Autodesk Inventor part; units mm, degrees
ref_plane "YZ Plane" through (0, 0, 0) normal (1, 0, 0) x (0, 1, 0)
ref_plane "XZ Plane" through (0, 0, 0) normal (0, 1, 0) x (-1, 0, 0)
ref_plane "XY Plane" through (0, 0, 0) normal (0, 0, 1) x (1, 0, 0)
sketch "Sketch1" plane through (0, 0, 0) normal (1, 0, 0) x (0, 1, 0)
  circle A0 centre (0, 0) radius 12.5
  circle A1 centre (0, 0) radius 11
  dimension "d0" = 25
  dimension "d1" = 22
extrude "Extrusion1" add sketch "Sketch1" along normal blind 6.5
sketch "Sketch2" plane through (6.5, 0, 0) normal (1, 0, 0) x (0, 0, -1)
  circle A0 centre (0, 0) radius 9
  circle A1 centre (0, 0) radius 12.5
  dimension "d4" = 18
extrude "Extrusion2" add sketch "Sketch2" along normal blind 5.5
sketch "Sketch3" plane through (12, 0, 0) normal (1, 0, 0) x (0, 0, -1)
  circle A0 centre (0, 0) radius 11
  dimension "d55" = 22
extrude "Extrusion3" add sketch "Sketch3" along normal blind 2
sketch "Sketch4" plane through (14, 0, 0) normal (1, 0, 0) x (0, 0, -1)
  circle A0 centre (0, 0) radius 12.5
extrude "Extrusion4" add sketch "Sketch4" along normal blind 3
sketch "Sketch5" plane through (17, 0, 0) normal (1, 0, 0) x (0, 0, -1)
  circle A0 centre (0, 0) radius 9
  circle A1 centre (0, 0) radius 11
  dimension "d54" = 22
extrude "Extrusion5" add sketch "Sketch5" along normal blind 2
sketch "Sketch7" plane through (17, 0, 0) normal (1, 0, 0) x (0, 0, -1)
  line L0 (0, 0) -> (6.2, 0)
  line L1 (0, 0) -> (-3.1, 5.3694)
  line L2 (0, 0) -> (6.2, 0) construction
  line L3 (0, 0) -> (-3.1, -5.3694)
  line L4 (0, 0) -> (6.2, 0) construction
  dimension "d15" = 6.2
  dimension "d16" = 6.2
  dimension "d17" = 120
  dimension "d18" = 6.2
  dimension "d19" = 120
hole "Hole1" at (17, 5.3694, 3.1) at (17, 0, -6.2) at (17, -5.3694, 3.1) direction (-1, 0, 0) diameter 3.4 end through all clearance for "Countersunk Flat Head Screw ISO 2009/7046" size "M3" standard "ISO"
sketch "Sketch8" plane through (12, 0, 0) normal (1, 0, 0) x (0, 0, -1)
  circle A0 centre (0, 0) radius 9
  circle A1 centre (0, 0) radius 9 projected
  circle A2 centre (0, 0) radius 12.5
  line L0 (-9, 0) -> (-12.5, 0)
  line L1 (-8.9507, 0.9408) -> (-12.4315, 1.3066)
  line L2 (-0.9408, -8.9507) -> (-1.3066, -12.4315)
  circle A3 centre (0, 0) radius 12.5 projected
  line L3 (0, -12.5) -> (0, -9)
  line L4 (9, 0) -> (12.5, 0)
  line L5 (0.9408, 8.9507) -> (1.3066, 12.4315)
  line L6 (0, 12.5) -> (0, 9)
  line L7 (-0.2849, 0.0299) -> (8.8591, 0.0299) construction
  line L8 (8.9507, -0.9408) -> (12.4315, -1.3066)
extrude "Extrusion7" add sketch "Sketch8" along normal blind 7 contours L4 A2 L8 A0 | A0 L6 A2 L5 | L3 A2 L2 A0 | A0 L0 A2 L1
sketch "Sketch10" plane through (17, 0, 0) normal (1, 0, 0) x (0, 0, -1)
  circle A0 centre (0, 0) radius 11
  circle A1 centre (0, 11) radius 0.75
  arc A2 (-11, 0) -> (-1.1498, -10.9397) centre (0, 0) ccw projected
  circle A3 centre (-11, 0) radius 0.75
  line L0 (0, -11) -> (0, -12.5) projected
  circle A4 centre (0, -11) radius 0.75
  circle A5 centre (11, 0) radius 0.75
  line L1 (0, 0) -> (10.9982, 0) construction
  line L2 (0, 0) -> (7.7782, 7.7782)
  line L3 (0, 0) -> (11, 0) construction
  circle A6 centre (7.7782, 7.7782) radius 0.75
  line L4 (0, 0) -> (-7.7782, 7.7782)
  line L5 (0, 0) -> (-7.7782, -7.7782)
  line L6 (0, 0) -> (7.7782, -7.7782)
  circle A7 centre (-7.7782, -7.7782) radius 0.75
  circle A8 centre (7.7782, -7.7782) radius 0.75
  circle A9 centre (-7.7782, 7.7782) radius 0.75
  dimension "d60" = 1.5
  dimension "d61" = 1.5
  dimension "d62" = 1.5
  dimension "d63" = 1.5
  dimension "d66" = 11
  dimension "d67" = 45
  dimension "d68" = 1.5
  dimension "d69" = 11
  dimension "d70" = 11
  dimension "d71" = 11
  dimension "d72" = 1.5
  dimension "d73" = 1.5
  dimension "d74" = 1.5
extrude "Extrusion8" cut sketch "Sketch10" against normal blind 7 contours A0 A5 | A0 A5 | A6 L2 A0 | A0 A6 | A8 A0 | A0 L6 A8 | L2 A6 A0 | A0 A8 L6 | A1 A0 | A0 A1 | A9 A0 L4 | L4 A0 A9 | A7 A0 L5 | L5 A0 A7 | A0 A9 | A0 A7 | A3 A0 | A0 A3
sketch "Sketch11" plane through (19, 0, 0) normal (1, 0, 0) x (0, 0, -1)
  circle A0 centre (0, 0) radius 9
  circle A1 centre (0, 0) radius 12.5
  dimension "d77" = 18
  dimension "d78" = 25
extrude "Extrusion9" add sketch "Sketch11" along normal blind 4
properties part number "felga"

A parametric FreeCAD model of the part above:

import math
import FreeCAD as App
import Part
import Sketcher
Q = App.Units.Quantity

doc = App.newDocument("Part")
body = doc.addObject("PartDesign::Body", "Body")

# Sketch on YZ plane
sketch1 = body.newObject("Sketcher::SketchObject", "Sketch")
sketch1.AttachmentSupport = (doc.getObject("YZ_Plane"), [""])
sketch1.MapMode = "FlatFace"
sketch1.addGeometry([
    Part.Circle(App.Vector(0, 0, 0), App.Vector(0, 0, 1), 12),
    Part.Circle(App.Vector(0, 0, 0), App.Vector(0, 0, 1), 11),
], False)
sketch1.addConstraint([
    Sketcher.Constraint("Coincident", 0, 3, -1, 1),
    Sketcher.Constraint("Coincident", 1, 3, -1, 1),
    Sketcher.Constraint("Diameter", 0, 25.0),
    Sketcher.Constraint("Diameter", 1, 22.0),
])
pad1 = body.newObject("PartDesign::Pad", "Pad")
pad1.Profile = sketch1
pad1.Length = 6.5

# Sketch on YZ plane
sketch2 = body.newObject("Sketcher::SketchObject", "Sketch001")
sketch2.AttachmentSupport = (doc.getObject("YZ_Plane"), [""])
sketch2.MapMode = "FlatFace"
sketch2.AttachmentOffset = App.Placement(App.Vector(0, 0, 6.5), App.Rotation())
sketch2.addGeometry([
    Part.Circle(App.Vector(0, 0, 0), App.Vector(0, 0, 1), 12),
    Part.Circle(App.Vector(0, 0, 0), App.Vector(0, 0, 1), 9),
], False)
sketch2.addConstraint([
    Sketcher.Constraint("Coincident", 0, 3, -1, 1),
    Sketcher.Constraint("Coincident", 1, 3, -1, 1),
    Sketcher.Constraint("Diameter", 1, 18.0),
    Sketcher.Constraint("Diameter", 0, 25.0),
])
pad2 = body.newObject("PartDesign::Pad", "Pad001")
pad2.Profile = sketch2
pad2.Length = 5.5

# Sketch on YZ plane
sketch3 = body.newObject("Sketcher::SketchObject", "Sketch002")
sketch3.AttachmentSupport = (doc.getObject("YZ_Plane"), [""])
sketch3.MapMode = "FlatFace"
sketch3.AttachmentOffset = App.Placement(App.Vector(0, 0, 12), App.Rotation())
sketch3.addGeometry(Part.Circle(App.Vector(0, 0, 0), App.Vector(0, 0, 1), 11), False)
sketch3.addConstraint([
    Sketcher.Constraint("Coincident", 0, 3, -1, 1),
    Sketcher.Constraint("Diameter", 0, 22.0),
])
pad3 = body.newObject("PartDesign::Pad", "Pad002")
pad3.Profile = sketch3
pad3.Length = 2

# Sketch on YZ plane
sketch4 = body.newObject("Sketcher::SketchObject", "Sketch003")
sketch4.AttachmentSupport = (doc.getObject("YZ_Plane"), [""])
sketch4.MapMode = "FlatFace"
sketch4.AttachmentOffset = App.Placement(App.Vector(0, 0, 14), App.Rotation())
sketch4.addGeometry(Part.Circle(App.Vector(0, 0, 0), App.Vector(0, 0, 1), 12), False)
sketch4.addConstraint([
    Sketcher.Constraint("Coincident", 0, 3, -1, 1),
    Sketcher.Constraint("Diameter", 0, 25.0),
])
pad4 = body.newObject("PartDesign::Pad", "Pad003")
pad4.Profile = sketch4
pad4.Length = 3

# Sketch on YZ plane
sketch5 = body.newObject("Sketcher::SketchObject", "Sketch004")
sketch5.AttachmentSupport = (doc.getObject("YZ_Plane"), [""])
sketch5.MapMode = "FlatFace"
sketch5.AttachmentOffset = App.Placement(App.Vector(0, 0, 17), App.Rotation())
sketch5.addGeometry([
    Part.Circle(App.Vector(0, 0, 0), App.Vector(0, 0, 1), 11),
    Part.Circle(App.Vector(0, 0, 0), App.Vector(0, 0, 1), 9),
], False)
sketch5.addConstraint([
    Sketcher.Constraint("Coincident", 0, 3, -1, 1),
    Sketcher.Constraint("Coincident", 1, 3, -1, 1),
    Sketcher.Constraint("Diameter", 0, 22.0),
    Sketcher.Constraint("Diameter", 1, 18.0),
])
pad5 = body.newObject("PartDesign::Pad", "Pad004")
pad5.Profile = sketch5
pad5.Length = 2

# Sketch on YZ plane
sketch6 = body.newObject("Sketcher::SketchObject", "Sketch005")
sketch6.AttachmentSupport = (doc.getObject("YZ_Plane"), [""])
sketch6.MapMode = "FlatFace"
sketch6.AttachmentOffset = App.Placement(App.Vector(0, 0, 17), App.Rotation())
sketch6.addGeometry([
    Part.Circle(App.Vector(5.4, 3.1, 0), App.Vector(0, 0, 1), 1.7),
    Part.Circle(App.Vector(0, -6.2, 0), App.Vector(0, 0, 1), 1.7),
    Part.Circle(App.Vector(-5.4, 3.1, 0), App.Vector(0, 0, 1), 1.7),
], False)
sketch6.addConstraint([
    Sketcher.Constraint("Equal", 0, 1),
    Sketcher.Constraint("Equal", 1, 2),
    Sketcher.Constraint("Symmetric", 0, 3, 2, 3, -2),
    Sketcher.Constraint("PointOnObject", 1, 3, -2),
    Sketcher.Constraint("Diameter", 0, 3.4),
    Sketcher.Constraint("DistanceY", -1, 1, 0, 3, 3.1),
    Sketcher.Constraint("DistanceY", 1, 3, -1, 1, 6.2),
    Sketcher.Constraint("DistanceX", -1, 1, 0, 3, 5.3694),
])
doc.recompute()
hole = body.newObject("PartDesign::Hole", "Hole")
hole.Profile = sketch6
hole.ThreadType = "None"
hole.Diameter = 3.4
hole.DepthType = "ThroughAll"

# Sketch on YZ plane
sketch7 = body.newObject("Sketcher::SketchObject", "Sketch006")
sketch7.AttachmentSupport = (doc.getObject("YZ_Plane"), [""])
sketch7.MapMode = "FlatFace"
sketch7.AttachmentOffset = App.Placement(App.Vector(0, 0, 12), App.Rotation())
sketch7.addGeometry([
    Part.LineSegment(App.Vector(0, -12.5, 0), App.Vector(0, -9, 0)),  # 0
    Part.ArcOfCircle(Part.Circle(App.Vector(0, 0, 0), App.Vector(0, 0, 1), 9), math.radians(-96), math.radians(-90)),  # 1
    Part.LineSegment(App.Vector(-0.9, -9, 0), App.Vector(-1.3, -12.4, 0)),  # 2
    Part.ArcOfCircle(Part.Circle(App.Vector(0, 0, 0), App.Vector(0, 0, 1), 12.5), math.radians(-96), math.radians(-90)),  # 3
    Part.ArcOfCircle(Part.Circle(App.Vector(0, 0, 0), App.Vector(0, 0, 1), 9), math.radians(-6), math.radians(0)),  # 4
    Part.LineSegment(App.Vector(9, -0.9, 0), App.Vector(12.4, -1.3, 0)),  # 5
    Part.ArcOfCircle(Part.Circle(App.Vector(0, 0, 0), App.Vector(0, 0, 1), 12.5), math.radians(-6), math.radians(0)),  # 6
    Part.LineSegment(App.Vector(12.5, 0, 0), App.Vector(9, 0, 0)),  # 7
    Part.LineSegment(App.Vector(-12.5, 0, 0), App.Vector(-9, 0, 0)),  # 8
    Part.ArcOfCircle(Part.Circle(App.Vector(0, 0, 0), App.Vector(0, 0, 1), 9), math.radians(174), math.radians(180)),  # 9
    Part.LineSegment(App.Vector(-9, 0.9, 0), App.Vector(-12.4, 1.3, 0)),  # 10
    Part.ArcOfCircle(Part.Circle(App.Vector(0, 0, 0), App.Vector(0, 0, 1), 12.5), math.radians(174), math.radians(180)),  # 11
    Part.ArcOfCircle(Part.Circle(App.Vector(0, 0, 0), App.Vector(0, 0, 1), 9), math.radians(84), math.radians(90)),  # 12
    Part.LineSegment(App.Vector(0.9, 9, 0), App.Vector(1.3, 12.4, 0)),  # 13
    Part.ArcOfCircle(Part.Circle(App.Vector(0, 0, 0), App.Vector(0, 0, 1), 12.5), math.radians(84), math.radians(90)),  # 14
    Part.LineSegment(App.Vector(0, 12.5, 0), App.Vector(0, 9, 0)),  # 15
], False)
sketch7.addConstraint([
    Sketcher.Constraint("Coincident", 0, 2, 1, 2),
    Sketcher.Constraint("Coincident", 1, 1, 2, 1),
    Sketcher.Constraint("Coincident", 2, 2, 3, 1),
    Sketcher.Constraint("Coincident", 3, 2, 0, 1),
    Sketcher.Constraint("Coincident", 4, 1, 5, 1),
    Sketcher.Constraint("Coincident", 5, 2, 6, 1),
    Sketcher.Constraint("Coincident", 6, 2, 7, 1),
    Sketcher.Constraint("Coincident", 7, 2, 4, 2),
    Sketcher.Constraint("Coincident", 8, 2, 9, 2),
    Sketcher.Constraint("Coincident", 9, 1, 10, 1),
    Sketcher.Constraint("Coincident", 10, 2, 11, 1),
    Sketcher.Constraint("Coincident", 11, 2, 8, 1),
    Sketcher.Constraint("Coincident", 12, 1, 13, 1),
    Sketcher.Constraint("Coincident", 13, 2, 14, 1),
    Sketcher.Constraint("Coincident", 14, 2, 15, 1),
    Sketcher.Constraint("Coincident", 15, 2, 12, 2),
    Sketcher.Constraint("Vertical", 0),
    Sketcher.Constraint("Horizontal", 7),
    Sketcher.Constraint("Horizontal", 8),
    Sketcher.Constraint("Vertical", 15),
    Sketcher.Constraint("Coincident", 1, 3, -1, 1),
    Sketcher.Constraint("Coincident", 3, 3, -1, 1),
    Sketcher.Constraint("Coincident", 4, 3, -1, 1),
    Sketcher.Constraint("Coincident", 6, 3, -1, 1),
    Sketcher.Constraint("Coincident", 9, 3, -1, 1),
    Sketcher.Constraint("Coincident", 11, 3, -1, 1),
    Sketcher.Constraint("Coincident", 12, 3, -1, 1),
    Sketcher.Constraint("Coincident", 14, 3, -1, 1),
    Sketcher.Constraint("Equal", 1, 4),
    Sketcher.Constraint("Equal", 3, 6),
    Sketcher.Constraint("Equal", 4, 9),
    Sketcher.Constraint("Equal", 6, 11),
    Sketcher.Constraint("Equal", 9, 12),
    Sketcher.Constraint("Equal", 11, 14),
    Sketcher.Constraint("PointOnObject", 0, 2, -2),
    Sketcher.Constraint("PointOnObject", 6, 2, -1),
    Sketcher.Constraint("PointOnObject", 8, 2, -1),
    Sketcher.Constraint("PointOnObject", 14, 2, -2),
    Sketcher.Constraint("Perpendicular", 2, 5),
    Sketcher.Constraint("Parallel", 5, 10),
    Sketcher.Constraint("Perpendicular", 10, 13),
    Sketcher.Constraint("Radius", 1, 9.0),
    Sketcher.Constraint("Radius", 3, 12.5),
    Sketcher.Constraint("Angle", 2, Q("-95.9992 deg")),
    Sketcher.Constraint("DistanceX", 1, 1, -1, 1, 0.9408),
    Sketcher.Constraint("DistanceX", -1, 1, 4, 1, 8.9507),
    Sketcher.Constraint("DistanceX", 9, 1, -1, 1, 8.9507),
    Sketcher.Constraint("DistanceX", -1, 1, 12, 1, 0.9408),
])
pad6 = body.newObject("PartDesign::Pad", "Pad005")
pad6.Profile = sketch7
pad6.Length = 7

# Sketch on YZ plane
sketch8 = body.newObject("Sketcher::SketchObject", "Sketch007")
sketch8.AttachmentSupport = (doc.getObject("YZ_Plane"), [""])
sketch8.MapMode = "FlatFace"
sketch8.AttachmentOffset = App.Placement(App.Vector(0, 0, 17), App.Rotation())
sketch8.addGeometry([
    Part.Circle(App.Vector(0, -11, 0), App.Vector(0, 0, 1), 0.8),  # 0
    Part.Circle(App.Vector(7.8, -7.8, 0), App.Vector(0, 0, 1), 0.8),  # 1
    Part.Circle(App.Vector(-7.8, -7.8, 0), App.Vector(0, 0, 1), 0.8),  # 2
    Part.Circle(App.Vector(11, 0, 0), App.Vector(0, 0, 1), 0.8),  # 3
    Part.Circle(App.Vector(7.8, 7.8, 0), App.Vector(0, 0, 1), 0.8),  # 4
    Part.Circle(App.Vector(-7.8, 7.8, 0), App.Vector(0, 0, 1), 0.8),  # 5
    Part.Circle(App.Vector(0, 11, 0), App.Vector(0, 0, 1), 0.8),  # 6
], False)
sketch8.addConstraint([
    Sketcher.Constraint("Equal", 0, 1),
    Sketcher.Constraint("Equal", 1, 2),
    Sketcher.Constraint("Equal", 2, 3),
    Sketcher.Constraint("Equal", 3, 4),
    Sketcher.Constraint("Equal", 4, 5),
    Sketcher.Constraint("Equal", 5, 6),
    Sketcher.Constraint("Symmetric", 2, 3, 4, 3, -1, 1),
    Sketcher.Constraint("Symmetric", 1, 3, 5, 3, -1, 1),
    Sketcher.Constraint("Symmetric", 0, 3, 6, 3, -1, 1),
    Sketcher.Constraint("Symmetric", 1, 3, 2, 3, -2),
    Sketcher.Constraint("PointOnObject", 0, 3, -2),
    Sketcher.Constraint("PointOnObject", 3, 3, -1),
    Sketcher.Constraint("Diameter", 0, 1.5),
    Sketcher.Constraint("DistanceY", 0, 3, -1, 1, 11.0),
    Sketcher.Constraint("DistanceX", -1, 1, 3, 3, 11.0),
    Sketcher.Constraint("DistanceX", -1, 1, 1, 3, 7.7782),
    Sketcher.Constraint("DistanceY", 1, 3, -1, 1, 7.7782),
])
pocket1 = body.newObject("PartDesign::Pocket", "Pocket")
pocket1.Profile = sketch8
pocket1.Length = 7

# Sketch on YZ plane
sketch9 = body.newObject("Sketcher::SketchObject", "Sketch008")
sketch9.AttachmentSupport = (doc.getObject("YZ_Plane"), [""])
sketch9.MapMode = "FlatFace"
sketch9.AttachmentOffset = App.Placement(App.Vector(0, 0, 19), App.Rotation())
sketch9.addGeometry([
    Part.Circle(App.Vector(0, 0, 0), App.Vector(0, 0, 1), 12),
    Part.Circle(App.Vector(0, 0, 0), App.Vector(0, 0, 1), 9),
], False)
sketch9.addConstraint([
    Sketcher.Constraint("Coincident", 0, 3, -1, 1),
    Sketcher.Constraint("Coincident", 1, 3, -1, 1),
    Sketcher.Constraint("Diameter", 0, 25.0),
    Sketcher.Constraint("Diameter", 1, 18.0),
])
pad7 = body.newObject("PartDesign::Pad", "Pad006")
pad7.Profile = sketch9
pad7.Length = 4

doc.recompute()
